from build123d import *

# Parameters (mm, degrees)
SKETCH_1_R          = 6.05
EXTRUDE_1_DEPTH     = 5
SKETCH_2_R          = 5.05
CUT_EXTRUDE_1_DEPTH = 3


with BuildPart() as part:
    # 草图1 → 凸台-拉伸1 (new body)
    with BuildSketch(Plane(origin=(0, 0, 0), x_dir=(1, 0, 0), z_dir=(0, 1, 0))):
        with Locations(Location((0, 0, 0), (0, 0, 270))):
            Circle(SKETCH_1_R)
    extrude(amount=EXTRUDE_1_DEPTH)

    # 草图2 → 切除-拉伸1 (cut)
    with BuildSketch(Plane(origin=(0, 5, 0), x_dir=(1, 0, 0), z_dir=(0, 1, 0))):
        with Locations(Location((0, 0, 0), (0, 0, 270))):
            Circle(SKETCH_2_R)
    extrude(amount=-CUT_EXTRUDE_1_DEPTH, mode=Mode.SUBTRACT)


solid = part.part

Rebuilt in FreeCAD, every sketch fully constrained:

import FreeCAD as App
import Part
import Sketcher
Q = App.Units.Quantity

doc = App.newDocument("Part")
body = doc.addObject("PartDesign::Body", "Body")

# Sketch on XZ plane
sketch1 = doc.addObject("Sketcher::SketchObject", "Sketch")
body.addObject(sketch1)
sketch1.AttachmentSupport = (doc.XZ_Plane, [""])
sketch1.MapMode = "FlatFace"
sketch1.addGeometry(Part.Circle(App.Vector(0, 0, 0), App.Vector(0, 0, 1), 6), False)
sketch1.addConstraint([
    Sketcher.Constraint("Coincident", 0, 3, -1, 1),
    Sketcher.Constraint("Diameter", 0, Q("12.1 mm")),
])
pad1 = doc.addObject("PartDesign::Pad", "Pad")
body.addObject(pad1)
pad1.Profile = sketch1
pad1.Length = 5
pad1.Reversed = True

# Sketch on XZ plane
sketch2 = doc.addObject("Sketcher::SketchObject", "Sketch001")
body.addObject(sketch2)
sketch2.AttachmentSupport = (doc.XZ_Plane, [""])
sketch2.MapMode = "FlatFace"
sketch2.AttachmentOffset = App.Placement(App.Vector(0, 0, -5), App.Rotation())
sketch2.addGeometry(Part.Circle(App.Vector(0, 0, 0), App.Vector(0, 0, 1), 5), False)
sketch2.addConstraint([
    Sketcher.Constraint("Coincident", 0, 3, -1, 1),
    Sketcher.Constraint("Diameter", 0, Q("10.1 mm")),
])
pocket1 = doc.addObject("PartDesign::Pocket", "Pocket")
body.addObject(pocket1)
pocket1.Profile = sketch2
pocket1.Length = 3
pocket1.Reversed = True

doc.recompute()
